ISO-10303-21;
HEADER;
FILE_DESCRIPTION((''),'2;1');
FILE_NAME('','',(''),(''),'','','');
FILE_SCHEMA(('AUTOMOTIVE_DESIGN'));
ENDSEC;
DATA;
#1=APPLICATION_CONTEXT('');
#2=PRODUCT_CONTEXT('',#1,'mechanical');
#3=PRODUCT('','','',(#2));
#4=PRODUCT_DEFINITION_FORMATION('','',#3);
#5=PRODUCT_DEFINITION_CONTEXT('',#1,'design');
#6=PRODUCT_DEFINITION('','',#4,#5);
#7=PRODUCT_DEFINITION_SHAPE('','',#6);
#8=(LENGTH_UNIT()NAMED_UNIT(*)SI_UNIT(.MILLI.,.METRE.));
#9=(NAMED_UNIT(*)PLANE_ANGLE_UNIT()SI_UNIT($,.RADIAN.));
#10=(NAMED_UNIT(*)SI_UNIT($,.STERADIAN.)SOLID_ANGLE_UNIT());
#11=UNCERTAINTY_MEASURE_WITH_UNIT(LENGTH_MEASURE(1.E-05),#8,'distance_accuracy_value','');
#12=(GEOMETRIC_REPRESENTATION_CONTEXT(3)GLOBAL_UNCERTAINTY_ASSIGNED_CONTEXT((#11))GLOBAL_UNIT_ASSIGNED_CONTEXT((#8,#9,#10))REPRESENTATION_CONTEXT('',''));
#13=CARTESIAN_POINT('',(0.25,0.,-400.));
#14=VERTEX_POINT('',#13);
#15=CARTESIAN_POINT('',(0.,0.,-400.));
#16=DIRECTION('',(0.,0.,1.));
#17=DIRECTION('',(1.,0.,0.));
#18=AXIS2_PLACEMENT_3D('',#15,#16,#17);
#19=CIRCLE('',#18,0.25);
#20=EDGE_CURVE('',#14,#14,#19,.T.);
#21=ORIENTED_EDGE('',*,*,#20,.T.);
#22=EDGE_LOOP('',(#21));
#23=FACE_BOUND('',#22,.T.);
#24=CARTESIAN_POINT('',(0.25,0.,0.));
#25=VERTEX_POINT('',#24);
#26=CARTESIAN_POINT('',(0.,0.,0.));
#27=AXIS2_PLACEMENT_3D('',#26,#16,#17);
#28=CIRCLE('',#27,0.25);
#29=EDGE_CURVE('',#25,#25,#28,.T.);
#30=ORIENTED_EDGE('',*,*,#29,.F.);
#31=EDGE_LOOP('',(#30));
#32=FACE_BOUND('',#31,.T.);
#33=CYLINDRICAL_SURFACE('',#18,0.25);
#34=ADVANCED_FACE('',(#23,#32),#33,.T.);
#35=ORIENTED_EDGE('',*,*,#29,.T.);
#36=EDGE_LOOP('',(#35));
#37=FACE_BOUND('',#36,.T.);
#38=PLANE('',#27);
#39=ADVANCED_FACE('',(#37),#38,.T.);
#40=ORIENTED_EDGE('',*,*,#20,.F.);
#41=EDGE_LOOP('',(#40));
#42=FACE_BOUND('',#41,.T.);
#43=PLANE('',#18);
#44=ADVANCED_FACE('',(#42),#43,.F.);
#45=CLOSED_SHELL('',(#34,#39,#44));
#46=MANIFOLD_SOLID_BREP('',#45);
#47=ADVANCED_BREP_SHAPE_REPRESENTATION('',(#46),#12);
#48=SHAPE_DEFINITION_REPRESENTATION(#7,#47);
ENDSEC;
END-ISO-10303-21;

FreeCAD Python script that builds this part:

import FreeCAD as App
import Part
import Sketcher
from FreeCAD import Vector

doc = App.newDocument("Part")
body = doc.addObject("PartDesign::Body", "Body")

# Sketch on XY plane
sketch1 = body.newObject("Sketcher::SketchObject", "Sketch")
sketch1.AttachmentSupport = (doc.getObject("XY_Plane"), [""])
sketch1.MapMode = "FlatFace"
sketch1.addGeometry(Part.Circle(Vector(0, 0, 0), Vector(0, 0, 1), 0.25), False)
sketch1.addConstraint([
    Sketcher.Constraint("Coincident", 0, 3, -1, 1),
    Sketcher.Constraint("Diameter", 0, 0.5),
])

# Sketch on XZ plane
sketch2 = body.newObject("Sketcher::SketchObject", "Sketch001")
sketch2.AttachmentSupport = (doc.getObject("XZ_Plane"), [""])
sketch2.MapMode = "FlatFace"
sketch2.addGeometry(Part.LineSegment(Vector(0, 0, 0), Vector(0, -400, 0)), False)
sketch2.addConstraint([
    Sketcher.Constraint("Vertical", 0),
    Sketcher.Constraint("Coincident", 0, 1, -1, 1),
    Sketcher.Constraint("DistanceY", 0, 2, 0, 1, 400.0),
])
doc.recompute()

additivepipe = body.newObject("PartDesign::AdditivePipe", "AdditivePipe")
additivepipe.Profile = sketch1
additivepipe.Spine = (sketch2, ["Edge1"])

doc.recompute()
